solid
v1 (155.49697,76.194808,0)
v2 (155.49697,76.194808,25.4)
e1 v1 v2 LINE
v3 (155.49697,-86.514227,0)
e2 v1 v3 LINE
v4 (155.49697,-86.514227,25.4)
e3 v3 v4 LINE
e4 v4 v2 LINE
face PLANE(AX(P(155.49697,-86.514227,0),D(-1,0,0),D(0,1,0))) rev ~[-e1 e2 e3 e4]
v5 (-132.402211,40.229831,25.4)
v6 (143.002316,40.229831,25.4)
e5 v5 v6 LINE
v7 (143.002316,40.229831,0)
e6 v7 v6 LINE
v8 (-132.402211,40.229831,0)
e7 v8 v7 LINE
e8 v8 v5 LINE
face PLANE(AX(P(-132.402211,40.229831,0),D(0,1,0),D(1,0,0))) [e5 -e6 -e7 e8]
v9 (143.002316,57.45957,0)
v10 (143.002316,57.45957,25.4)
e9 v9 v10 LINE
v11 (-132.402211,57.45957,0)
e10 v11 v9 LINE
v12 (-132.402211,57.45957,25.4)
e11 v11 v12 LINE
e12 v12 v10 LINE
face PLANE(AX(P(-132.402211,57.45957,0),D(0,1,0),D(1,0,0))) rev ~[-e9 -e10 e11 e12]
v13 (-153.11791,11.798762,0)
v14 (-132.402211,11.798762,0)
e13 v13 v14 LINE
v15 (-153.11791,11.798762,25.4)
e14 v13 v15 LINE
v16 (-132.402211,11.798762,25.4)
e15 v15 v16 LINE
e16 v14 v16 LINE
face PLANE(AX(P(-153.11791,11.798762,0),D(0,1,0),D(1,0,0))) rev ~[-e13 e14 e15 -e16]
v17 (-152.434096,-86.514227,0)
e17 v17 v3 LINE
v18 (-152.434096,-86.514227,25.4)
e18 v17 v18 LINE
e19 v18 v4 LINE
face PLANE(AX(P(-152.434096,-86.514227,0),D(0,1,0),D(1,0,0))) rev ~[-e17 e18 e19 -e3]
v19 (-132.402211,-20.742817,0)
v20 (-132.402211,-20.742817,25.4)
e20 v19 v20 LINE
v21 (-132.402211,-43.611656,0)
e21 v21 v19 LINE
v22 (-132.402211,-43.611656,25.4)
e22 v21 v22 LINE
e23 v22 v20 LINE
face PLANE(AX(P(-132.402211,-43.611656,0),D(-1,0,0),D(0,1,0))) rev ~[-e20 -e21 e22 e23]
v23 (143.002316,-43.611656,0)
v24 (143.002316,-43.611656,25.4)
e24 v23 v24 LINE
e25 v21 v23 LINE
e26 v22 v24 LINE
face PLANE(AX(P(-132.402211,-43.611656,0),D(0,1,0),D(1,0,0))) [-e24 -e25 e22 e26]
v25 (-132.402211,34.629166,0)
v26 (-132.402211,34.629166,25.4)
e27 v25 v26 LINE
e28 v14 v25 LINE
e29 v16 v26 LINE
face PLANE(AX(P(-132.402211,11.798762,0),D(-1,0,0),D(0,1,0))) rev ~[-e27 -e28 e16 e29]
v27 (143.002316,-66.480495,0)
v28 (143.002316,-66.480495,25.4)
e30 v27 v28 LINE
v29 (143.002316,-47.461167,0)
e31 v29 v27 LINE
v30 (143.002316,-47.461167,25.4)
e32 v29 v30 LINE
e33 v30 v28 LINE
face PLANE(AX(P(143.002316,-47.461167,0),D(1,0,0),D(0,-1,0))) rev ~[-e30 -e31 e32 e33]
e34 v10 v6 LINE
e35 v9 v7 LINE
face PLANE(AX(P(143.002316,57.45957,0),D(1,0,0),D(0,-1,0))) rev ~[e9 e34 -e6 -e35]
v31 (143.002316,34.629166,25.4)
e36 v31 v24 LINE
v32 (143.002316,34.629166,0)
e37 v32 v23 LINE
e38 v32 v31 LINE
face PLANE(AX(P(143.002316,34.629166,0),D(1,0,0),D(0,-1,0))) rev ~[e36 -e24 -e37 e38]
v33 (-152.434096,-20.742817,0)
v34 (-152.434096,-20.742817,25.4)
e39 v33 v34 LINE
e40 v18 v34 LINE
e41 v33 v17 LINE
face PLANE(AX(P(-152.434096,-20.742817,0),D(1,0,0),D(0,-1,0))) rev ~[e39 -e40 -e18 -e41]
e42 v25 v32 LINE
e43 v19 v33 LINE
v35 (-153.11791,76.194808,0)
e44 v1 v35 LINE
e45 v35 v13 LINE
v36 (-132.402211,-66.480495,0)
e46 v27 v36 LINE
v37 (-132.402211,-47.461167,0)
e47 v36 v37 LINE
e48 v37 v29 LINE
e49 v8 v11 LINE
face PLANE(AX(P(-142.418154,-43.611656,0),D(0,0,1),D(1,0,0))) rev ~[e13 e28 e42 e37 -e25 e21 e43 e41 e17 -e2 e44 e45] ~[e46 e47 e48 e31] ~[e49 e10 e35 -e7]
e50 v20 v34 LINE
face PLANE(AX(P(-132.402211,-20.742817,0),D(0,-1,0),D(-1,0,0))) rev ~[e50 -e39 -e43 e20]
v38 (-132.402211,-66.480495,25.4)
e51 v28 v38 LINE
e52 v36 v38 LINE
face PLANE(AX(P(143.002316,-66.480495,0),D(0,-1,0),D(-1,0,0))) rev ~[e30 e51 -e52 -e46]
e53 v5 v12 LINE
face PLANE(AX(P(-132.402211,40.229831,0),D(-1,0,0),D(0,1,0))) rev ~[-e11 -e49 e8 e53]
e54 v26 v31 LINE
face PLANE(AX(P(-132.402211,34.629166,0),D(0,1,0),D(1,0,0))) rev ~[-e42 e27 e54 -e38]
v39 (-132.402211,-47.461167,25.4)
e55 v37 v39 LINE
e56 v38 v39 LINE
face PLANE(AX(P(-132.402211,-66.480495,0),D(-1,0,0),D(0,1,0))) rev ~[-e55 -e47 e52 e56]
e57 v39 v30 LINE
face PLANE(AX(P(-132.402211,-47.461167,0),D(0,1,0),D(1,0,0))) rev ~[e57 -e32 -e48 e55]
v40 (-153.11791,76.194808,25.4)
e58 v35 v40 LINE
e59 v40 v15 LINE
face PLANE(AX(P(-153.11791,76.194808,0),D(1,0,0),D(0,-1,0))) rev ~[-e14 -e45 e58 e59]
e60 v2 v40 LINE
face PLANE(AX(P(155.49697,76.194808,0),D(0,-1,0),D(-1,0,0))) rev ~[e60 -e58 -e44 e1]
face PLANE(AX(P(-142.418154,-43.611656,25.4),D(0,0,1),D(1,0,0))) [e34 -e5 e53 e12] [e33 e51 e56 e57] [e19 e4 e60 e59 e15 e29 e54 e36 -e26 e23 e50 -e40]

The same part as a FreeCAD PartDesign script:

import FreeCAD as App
import Part
import Sketcher
Q = App.Units.Quantity

doc = App.newDocument("Part")
body = doc.addObject("PartDesign::Body", "Body")

sketch1 = body.newObject("Sketcher::SketchObject", "Sketch")
sketch1.AttachmentSupport = (doc.getObject("XY_Plane"), [""])
sketch1.MapMode = "FlatFace"
sketch1.addGeometry([
    Part.LineSegment(App.Vector(-152.434096, -66.480495, 0), App.Vector(-152.434096, -86.514227, 0)),
    Part.LineSegment(App.Vector(-152.434096, -86.514227, 0), App.Vector(155.49697, -86.514227, 0)),
    Part.LineSegment(App.Vector(155.49697, -86.514227, 0), App.Vector(155.49697, -66.480495, 0)),
    Part.LineSegment(App.Vector(155.49697, -66.480495, 0), App.Vector(-152.434096, -66.480495, 0)),
], False)
sketch1.addConstraint([
    Sketcher.Constraint("Coincident", 0, 2, 1, 1),
    Sketcher.Constraint("Coincident", 1, 2, 2, 1),
    Sketcher.Constraint("Coincident", 2, 2, 3, 1),
    Sketcher.Constraint("Coincident", 3, 2, 0, 1),
    Sketcher.Constraint("Vertical", 0),
    Sketcher.Constraint("Horizontal", 1),
    Sketcher.Constraint("Vertical", 2),
    Sketcher.Constraint("Horizontal", 3),
    Sketcher.Constraint("DistanceX", 1, 1, 1, 2, 307.931066),
    Sketcher.Constraint("DistanceY", 0, 2, 0, 1, 20.033732),
    Sketcher.Constraint("DistanceX", -1, 1, 1, 2, 155.49697),
    Sketcher.Constraint("DistanceY", 0, 2, -1, 1, 86.514227),
])
pad1 = body.newObject("PartDesign::Pad", "Pad")
pad1.Profile = sketch1
pad1.Length = Q("1 in")

sketch2 = body.newObject("Sketcher::SketchObject", "Sketch001")
sketch2.AttachmentSupport = (doc.getObject("XY_Plane"), [""])
sketch2.MapMode = "FlatFace"
sketch2.addGeometry([
    Part.LineSegment(App.Vector(-152.434096, -20.742817, 0), App.Vector(-152.434096, -86.514227, 0)),
    Part.LineSegment(App.Vector(-152.434096, -86.514227, 0), App.Vector(155.49697, -86.514227, 0)),
    Part.LineSegment(App.Vector(155.49697, -86.514227, 0), App.Vector(155.49697, 76.194808, 0)),
    Part.LineSegment(App.Vector(155.49697, 76.194808, 0), App.Vector(-153.11791, 76.194808, 0)),
    Part.LineSegment(App.Vector(-153.11791, 76.194808, 0), App.Vector(-153.11791, 11.798762, 0)),
    Part.LineSegment(App.Vector(-153.11791, 11.798762, 0), App.Vector(-132.402211, 11.798762, 0)),
    Part.LineSegment(App.Vector(-132.402211, 11.798762, 0), App.Vector(-132.402211, 34.629166, 0)),
    Part.LineSegment(App.Vector(-132.402211, 34.629166, 0), App.Vector(143.002316, 34.629166, 0)),
    Part.LineSegment(App.Vector(143.002316, 34.629166, 0), App.Vector(143.002316, -43.611656, 0)),
    Part.LineSegment(App.Vector(143.002316, -43.611656, 0), App.Vector(-132.402211, -43.611656, 0)),
    Part.LineSegment(App.Vector(-132.402211, -43.611656, 0), App.Vector(-132.402211, -20.742817, 0)),
    Part.LineSegment(App.Vector(-132.402211, -20.742817, 0), App.Vector(-152.434096, -20.742817, 0)),
    Part.LineSegment(App.Vector(-132.402211, 57.45957, 0), App.Vector(143.002316, 57.45957, 0)),
    Part.LineSegment(App.Vector(143.002316, 57.45957, 0), App.Vector(143.002316, 40.229831, 0)),
    Part.LineSegment(App.Vector(143.002316, 40.229831, 0), App.Vector(-132.402211, 40.229831, 0)),
    Part.LineSegment(App.Vector(-132.402211, 40.229831, 0), App.Vector(-132.402211, 57.45957, 0)),
    Part.LineSegment(App.Vector(143.002316, -47.461167, 0), App.Vector(143.002316, -66.480495, 0)),
    Part.LineSegment(App.Vector(143.002316, -66.480495, 0), App.Vector(-132.402211, -66.480495, 0)),
    Part.LineSegment(App.Vector(-132.402211, -66.480495, 0), App.Vector(-132.402211, -47.461167, 0)),
    Part.LineSegment(App.Vector(-132.402211, -47.461167, 0), App.Vector(143.002316, -47.461167, 0)),
], False)
sketch2.addConstraint([
    Sketcher.Constraint("Coincident", 0, 2, 1, 1),
    Sketcher.Constraint("Coincident", 1, 2, 2, 1),
    Sketcher.Constraint("Coincident", 2, 2, 3, 1),
    Sketcher.Constraint("Coincident", 3, 2, 4, 1),
    Sketcher.Constraint("Coincident", 4, 2, 5, 1),
    Sketcher.Constraint("Coincident", 5, 2, 6, 1),
    Sketcher.Constraint("Coincident", 6, 2, 7, 1),
    Sketcher.Constraint("Coincident", 7, 2, 8, 1),
    Sketcher.Constraint("Coincident", 8, 2, 9, 1),
    Sketcher.Constraint("Coincident", 9, 2, 10, 1),
    Sketcher.Constraint("Coincident", 10, 2, 11, 1),
    Sketcher.Constraint("Coincident", 11, 2, 0, 1),
    Sketcher.Constraint("Coincident", 12, 2, 13, 1),
    Sketcher.Constraint("Coincident", 13, 2, 14, 1),
    Sketcher.Constraint("Coincident", 14, 2, 15, 1),
    Sketcher.Constraint("Coincident", 15, 2, 12, 1),
    Sketcher.Constraint("Coincident", 16, 2, 17, 1),
    Sketcher.Constraint("Coincident", 17, 2, 18, 1),
    Sketcher.Constraint("Coincident", 18, 2, 19, 1),
    Sketcher.Constraint("Coincident", 19, 2, 16, 1),
    Sketcher.Constraint("Vertical", 0),
    Sketcher.Constraint("Horizontal", 1),
    Sketcher.Constraint("Vertical", 2),
    Sketcher.Constraint("Horizontal", 3),
    Sketcher.Constraint("Vertical", 4),
    Sketcher.Constraint("Horizontal", 5),
    Sketcher.Constraint("Vertical", 6),
    Sketcher.Constraint("Horizontal", 7),
    Sketcher.Constraint("Vertical", 8),
    Sketcher.Constraint("Horizontal", 9),
    Sketcher.Constraint("Vertical", 10),
    Sketcher.Constraint("Horizontal", 11),
    Sketcher.Constraint("Horizontal", 12),
    Sketcher.Constraint("Vertical", 13),
    Sketcher.Constraint("Horizontal", 14),
    Sketcher.Constraint("Vertical", 15),
    Sketcher.Constraint("Vertical", 16),
    Sketcher.Constraint("Horizontal", 17),
    Sketcher.Constraint("Vertical", 18),
    Sketcher.Constraint("Horizontal", 19),
    Sketcher.Constraint("Vertical", 6, 2, 9, 2),
    Sketcher.Constraint("Vertical", 8, 2, 12, 2),
    Sketcher.Constraint("Vertical", 10, 2, 14, 2),
    Sketcher.Constraint("Vertical", 13, 2, 16, 2),
    Sketcher.Constraint("Vertical", 15, 2, 17, 2),
    Sketcher.Constraint("DistanceX", 5, 1, 5, 2, 20.715699),
    Sketcher.Constraint("DistanceX", 3, 2, 3, 1, 308.61488),
    Sketcher.Constraint("DistanceY", 0, 2, 0, 1, 65.77141),
    Sketcher.Constraint("DistanceY", 10, 1, 10, 2, 22.868839),
    Sketcher.Constraint("DistanceY", 13, 2, 13, 1, 17.22974),
    Sketcher.Constraint("DistanceY", 16, 2, 16, 1, 19.019328),
    Sketcher.Constraint("DistanceX", 1, 1, 1, 2, 307.931066),
    Sketcher.Constraint("DistanceX", 7, 1, 7, 2, 275.404528),
    Sketcher.Constraint("DistanceY", 2, 1, 2, 2, 162.709035),
    Sketcher.Constraint("DistanceY", 4, 2, 4, 1, 64.396046),
    Sketcher.Constraint("DistanceY", 6, 1, 6, 2, 22.830404),
    Sketcher.Constraint("DistanceX", -1, 1, 1, 2, 155.49697),
    Sketcher.Constraint("DistanceY", -1, 1, 4, 2, 11.798762),
    Sketcher.Constraint("DistanceY", -1, 1, 12, 2, 57.45957),
    Sketcher.Constraint("DistanceY", 16, 2, 8, 2, 22.868839),
])
pad2 = body.newObject("PartDesign::Pad", "Pad001")
pad2.Profile = sketch2
pad2.Length = Q("1 in")

doc.recompute()
